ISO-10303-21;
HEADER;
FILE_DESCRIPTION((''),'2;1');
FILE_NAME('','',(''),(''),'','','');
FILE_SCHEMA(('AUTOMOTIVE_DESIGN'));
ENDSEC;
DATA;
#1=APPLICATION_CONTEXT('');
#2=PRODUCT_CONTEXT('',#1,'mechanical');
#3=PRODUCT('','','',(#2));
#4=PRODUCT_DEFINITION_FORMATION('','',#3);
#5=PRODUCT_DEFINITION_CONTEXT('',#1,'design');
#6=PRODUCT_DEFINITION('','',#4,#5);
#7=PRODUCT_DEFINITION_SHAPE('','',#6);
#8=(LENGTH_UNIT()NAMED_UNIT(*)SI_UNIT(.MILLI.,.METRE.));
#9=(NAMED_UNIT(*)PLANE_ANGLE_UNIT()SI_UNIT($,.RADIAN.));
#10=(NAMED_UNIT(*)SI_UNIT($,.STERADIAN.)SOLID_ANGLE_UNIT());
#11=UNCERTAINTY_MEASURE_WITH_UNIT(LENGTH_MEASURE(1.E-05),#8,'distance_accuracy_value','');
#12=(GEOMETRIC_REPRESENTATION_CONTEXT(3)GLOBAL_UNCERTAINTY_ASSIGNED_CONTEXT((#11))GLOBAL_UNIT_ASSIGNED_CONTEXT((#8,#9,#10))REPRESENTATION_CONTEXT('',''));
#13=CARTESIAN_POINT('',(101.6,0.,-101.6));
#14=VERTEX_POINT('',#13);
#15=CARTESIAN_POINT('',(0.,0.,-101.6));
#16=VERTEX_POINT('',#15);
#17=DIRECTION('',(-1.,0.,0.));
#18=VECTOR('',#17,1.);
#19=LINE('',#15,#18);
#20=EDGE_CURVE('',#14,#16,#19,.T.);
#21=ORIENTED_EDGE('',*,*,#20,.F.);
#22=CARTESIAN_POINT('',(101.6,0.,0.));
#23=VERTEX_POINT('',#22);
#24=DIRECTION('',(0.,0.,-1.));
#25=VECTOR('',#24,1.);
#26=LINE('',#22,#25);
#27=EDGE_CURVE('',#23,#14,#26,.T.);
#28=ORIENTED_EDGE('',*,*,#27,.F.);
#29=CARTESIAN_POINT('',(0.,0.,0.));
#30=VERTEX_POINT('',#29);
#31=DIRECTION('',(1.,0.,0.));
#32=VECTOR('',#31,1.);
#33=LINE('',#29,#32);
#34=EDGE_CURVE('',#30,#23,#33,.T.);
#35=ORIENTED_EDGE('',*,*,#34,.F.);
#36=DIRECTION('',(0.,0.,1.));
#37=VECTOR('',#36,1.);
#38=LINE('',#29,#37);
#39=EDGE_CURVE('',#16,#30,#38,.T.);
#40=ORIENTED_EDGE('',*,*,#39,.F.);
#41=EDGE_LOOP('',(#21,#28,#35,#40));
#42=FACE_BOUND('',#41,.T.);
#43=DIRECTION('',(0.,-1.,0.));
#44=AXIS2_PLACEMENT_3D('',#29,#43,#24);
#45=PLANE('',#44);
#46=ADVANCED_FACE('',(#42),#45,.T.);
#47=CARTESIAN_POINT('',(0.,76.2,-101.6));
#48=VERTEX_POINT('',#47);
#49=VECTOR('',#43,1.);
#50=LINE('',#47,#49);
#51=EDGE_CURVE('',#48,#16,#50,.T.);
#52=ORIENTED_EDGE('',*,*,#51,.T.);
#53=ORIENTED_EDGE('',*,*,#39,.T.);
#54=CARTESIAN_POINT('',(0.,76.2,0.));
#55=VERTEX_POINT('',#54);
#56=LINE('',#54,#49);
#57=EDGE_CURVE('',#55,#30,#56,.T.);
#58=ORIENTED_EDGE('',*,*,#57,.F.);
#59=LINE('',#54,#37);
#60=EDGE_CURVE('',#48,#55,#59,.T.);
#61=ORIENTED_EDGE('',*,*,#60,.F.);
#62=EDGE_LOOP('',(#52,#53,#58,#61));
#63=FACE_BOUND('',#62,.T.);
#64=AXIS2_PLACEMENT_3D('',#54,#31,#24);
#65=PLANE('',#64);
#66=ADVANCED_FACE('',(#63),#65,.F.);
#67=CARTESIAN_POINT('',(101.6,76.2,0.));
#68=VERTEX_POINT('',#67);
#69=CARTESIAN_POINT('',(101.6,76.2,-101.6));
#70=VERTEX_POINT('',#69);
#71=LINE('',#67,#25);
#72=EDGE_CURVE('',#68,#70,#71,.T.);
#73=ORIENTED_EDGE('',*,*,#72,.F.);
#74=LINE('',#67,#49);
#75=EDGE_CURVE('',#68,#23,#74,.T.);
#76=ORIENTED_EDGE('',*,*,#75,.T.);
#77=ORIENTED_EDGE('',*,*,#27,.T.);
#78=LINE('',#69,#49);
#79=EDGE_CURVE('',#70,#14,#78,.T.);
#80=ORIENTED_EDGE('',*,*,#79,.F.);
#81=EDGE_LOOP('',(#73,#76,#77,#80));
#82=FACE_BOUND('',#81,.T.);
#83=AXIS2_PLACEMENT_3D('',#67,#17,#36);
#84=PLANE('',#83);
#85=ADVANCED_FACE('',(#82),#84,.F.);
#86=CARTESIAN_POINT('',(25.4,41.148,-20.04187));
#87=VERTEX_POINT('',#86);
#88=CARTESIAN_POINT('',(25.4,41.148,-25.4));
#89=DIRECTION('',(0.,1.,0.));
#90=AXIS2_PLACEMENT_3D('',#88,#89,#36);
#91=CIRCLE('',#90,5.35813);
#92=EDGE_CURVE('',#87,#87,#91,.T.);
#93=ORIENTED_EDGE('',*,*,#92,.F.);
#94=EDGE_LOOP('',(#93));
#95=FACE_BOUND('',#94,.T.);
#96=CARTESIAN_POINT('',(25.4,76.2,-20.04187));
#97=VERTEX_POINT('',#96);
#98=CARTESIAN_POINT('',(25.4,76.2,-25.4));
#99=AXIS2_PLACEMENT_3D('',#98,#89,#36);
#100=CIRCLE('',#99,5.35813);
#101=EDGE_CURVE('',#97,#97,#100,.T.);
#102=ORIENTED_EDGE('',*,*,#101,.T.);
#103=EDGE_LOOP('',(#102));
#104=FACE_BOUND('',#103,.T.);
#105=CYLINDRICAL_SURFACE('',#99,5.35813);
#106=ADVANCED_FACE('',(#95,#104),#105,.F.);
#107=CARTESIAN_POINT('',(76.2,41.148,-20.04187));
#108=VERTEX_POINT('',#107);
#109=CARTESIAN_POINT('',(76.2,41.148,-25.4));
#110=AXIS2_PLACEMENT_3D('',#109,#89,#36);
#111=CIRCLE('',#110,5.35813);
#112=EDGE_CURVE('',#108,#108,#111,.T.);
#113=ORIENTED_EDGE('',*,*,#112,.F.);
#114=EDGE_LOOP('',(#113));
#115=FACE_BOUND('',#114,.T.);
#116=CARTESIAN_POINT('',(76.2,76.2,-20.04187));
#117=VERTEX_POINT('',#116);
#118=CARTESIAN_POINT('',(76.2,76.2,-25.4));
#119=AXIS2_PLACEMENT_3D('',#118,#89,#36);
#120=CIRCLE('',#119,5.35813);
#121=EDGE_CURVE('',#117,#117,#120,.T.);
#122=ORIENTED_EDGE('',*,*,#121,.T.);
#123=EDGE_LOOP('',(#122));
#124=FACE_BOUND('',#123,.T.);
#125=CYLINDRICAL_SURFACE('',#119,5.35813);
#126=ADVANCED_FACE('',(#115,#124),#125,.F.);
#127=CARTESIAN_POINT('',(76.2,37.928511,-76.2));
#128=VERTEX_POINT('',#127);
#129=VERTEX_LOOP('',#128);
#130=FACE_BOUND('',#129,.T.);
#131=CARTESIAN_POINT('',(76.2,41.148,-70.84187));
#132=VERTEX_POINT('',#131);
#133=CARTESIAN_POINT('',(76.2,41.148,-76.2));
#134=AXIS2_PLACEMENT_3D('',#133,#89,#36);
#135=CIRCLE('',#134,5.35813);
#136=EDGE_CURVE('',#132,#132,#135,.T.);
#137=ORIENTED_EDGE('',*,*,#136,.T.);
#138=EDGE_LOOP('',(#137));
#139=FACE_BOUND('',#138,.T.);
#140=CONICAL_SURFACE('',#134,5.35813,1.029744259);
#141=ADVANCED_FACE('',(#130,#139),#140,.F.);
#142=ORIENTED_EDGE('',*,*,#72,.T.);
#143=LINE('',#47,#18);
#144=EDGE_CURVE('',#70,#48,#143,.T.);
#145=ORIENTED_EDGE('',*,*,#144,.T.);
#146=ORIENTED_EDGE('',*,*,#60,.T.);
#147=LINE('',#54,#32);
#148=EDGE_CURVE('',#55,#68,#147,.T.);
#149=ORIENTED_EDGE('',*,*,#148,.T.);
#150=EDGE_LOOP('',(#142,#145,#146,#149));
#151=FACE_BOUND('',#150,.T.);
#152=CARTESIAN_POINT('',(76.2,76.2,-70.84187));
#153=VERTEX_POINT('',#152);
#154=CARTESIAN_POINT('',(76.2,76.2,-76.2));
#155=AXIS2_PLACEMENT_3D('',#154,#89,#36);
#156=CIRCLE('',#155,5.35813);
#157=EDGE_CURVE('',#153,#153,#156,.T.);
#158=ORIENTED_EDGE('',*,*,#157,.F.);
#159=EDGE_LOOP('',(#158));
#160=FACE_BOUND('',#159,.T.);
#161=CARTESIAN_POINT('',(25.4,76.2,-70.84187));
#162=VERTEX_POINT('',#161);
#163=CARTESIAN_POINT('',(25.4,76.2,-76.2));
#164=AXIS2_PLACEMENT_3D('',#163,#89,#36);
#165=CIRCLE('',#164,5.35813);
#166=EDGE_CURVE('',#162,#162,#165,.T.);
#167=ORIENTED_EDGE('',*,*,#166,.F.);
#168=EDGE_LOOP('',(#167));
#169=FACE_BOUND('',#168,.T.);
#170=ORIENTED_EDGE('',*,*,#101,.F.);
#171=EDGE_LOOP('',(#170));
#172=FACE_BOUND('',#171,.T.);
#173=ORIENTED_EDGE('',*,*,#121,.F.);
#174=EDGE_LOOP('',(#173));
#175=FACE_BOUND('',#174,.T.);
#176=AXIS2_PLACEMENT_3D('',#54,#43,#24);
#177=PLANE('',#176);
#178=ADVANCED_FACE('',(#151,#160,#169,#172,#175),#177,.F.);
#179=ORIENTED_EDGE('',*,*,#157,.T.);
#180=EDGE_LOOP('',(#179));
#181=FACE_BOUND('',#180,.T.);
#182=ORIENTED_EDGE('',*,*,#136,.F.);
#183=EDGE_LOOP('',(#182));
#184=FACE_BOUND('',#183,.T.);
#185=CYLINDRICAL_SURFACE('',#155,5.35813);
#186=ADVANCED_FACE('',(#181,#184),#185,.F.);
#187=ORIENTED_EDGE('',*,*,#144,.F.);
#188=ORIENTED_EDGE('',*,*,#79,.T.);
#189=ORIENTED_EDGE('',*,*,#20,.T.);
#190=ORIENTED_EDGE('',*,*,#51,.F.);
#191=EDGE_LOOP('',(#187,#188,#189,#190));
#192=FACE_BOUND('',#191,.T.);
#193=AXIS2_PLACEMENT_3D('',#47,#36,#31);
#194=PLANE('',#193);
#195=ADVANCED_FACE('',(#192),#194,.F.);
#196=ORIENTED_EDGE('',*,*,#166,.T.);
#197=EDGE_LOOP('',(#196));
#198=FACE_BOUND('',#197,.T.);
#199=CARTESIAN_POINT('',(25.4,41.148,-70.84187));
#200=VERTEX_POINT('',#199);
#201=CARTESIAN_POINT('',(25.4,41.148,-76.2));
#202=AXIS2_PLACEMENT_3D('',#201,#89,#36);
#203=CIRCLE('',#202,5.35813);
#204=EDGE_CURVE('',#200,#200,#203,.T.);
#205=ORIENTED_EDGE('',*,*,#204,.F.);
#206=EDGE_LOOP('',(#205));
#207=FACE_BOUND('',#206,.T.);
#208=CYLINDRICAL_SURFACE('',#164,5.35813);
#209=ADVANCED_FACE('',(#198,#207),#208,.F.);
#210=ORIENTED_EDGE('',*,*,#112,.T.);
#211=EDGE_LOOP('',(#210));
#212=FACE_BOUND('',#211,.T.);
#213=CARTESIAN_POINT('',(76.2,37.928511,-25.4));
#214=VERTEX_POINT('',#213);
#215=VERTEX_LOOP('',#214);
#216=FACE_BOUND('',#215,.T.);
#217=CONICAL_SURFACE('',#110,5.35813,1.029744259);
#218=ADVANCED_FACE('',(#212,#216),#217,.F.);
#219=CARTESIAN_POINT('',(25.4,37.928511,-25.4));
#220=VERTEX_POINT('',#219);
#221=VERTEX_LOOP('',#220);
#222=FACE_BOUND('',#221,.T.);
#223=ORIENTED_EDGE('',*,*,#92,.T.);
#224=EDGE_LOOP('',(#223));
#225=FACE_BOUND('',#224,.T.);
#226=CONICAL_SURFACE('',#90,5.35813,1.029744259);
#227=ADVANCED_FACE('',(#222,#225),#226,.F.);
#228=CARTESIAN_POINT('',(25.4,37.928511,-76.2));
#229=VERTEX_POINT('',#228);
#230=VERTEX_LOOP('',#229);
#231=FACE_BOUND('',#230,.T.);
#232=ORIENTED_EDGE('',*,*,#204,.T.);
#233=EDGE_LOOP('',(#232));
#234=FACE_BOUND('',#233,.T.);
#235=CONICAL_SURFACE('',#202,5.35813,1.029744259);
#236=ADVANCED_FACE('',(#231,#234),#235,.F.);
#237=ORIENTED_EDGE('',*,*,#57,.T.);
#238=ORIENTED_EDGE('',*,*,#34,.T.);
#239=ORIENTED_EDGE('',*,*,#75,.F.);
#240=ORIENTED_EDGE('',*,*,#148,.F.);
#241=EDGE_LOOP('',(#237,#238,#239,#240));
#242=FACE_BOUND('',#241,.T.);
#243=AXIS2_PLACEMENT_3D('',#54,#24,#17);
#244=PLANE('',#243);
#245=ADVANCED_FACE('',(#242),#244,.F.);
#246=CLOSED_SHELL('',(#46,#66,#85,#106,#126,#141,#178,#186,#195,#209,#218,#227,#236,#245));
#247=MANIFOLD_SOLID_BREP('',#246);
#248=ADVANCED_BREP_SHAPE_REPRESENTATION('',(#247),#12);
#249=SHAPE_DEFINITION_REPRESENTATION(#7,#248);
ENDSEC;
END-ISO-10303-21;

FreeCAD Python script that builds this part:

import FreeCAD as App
import Part
import Sketcher
from FreeCAD import Vector
Q = App.Units.Quantity

doc = App.newDocument("Part")
body = doc.addObject("PartDesign::Body", "Body")

sketch1 = body.newObject("Sketcher::SketchObject", "Sketch")
sketch1.AttachmentSupport = (doc.getObject("XZ_Plane"), [""])
sketch1.MapMode = "FlatFace"
sketch1.addGeometry(Part.LineSegment(Vector(0, -101.6, 0), Vector(0, 0, 0)), False)
sketch1.addGeometry(Part.LineSegment(Vector(0, 0, 0), Vector(101.6, 0, 0)), False)
sketch1.addGeometry(Part.LineSegment(Vector(101.6, 0, 0), Vector(101.6, -101.6, 0)), False)
sketch1.addGeometry(Part.LineSegment(Vector(101.6, -101.6, 0), Vector(0, -101.6, 0)), False)
sketch1.addConstraint(Sketcher.Constraint("Coincident", 0, 2, 1, 1))
sketch1.addConstraint(Sketcher.Constraint("Coincident", 1, 2, 2, 1))
sketch1.addConstraint(Sketcher.Constraint("Coincident", 2, 2, 3, 1))
sketch1.addConstraint(Sketcher.Constraint("Coincident", 3, 2, 0, 1))
sketch1.addConstraint(Sketcher.Constraint("Vertical", 0))
sketch1.addConstraint(Sketcher.Constraint("Horizontal", 1))
sketch1.addConstraint(Sketcher.Constraint("Vertical", 2))
sketch1.addConstraint(Sketcher.Constraint("Horizontal", 3))
sketch1.addConstraint(Sketcher.Constraint("Coincident", 0, 2, -1, 1))
sketch1.addConstraint(Sketcher.Constraint("Equal", 3, 0))
sketch1.addConstraint(Sketcher.Constraint("DistanceX", 1, 1, 1, 2, Q("4 in")))
pad1 = body.newObject("PartDesign::Pad", "Pad")
pad1.Profile = sketch1
pad1.Length = Q("3 in")
pad1.Reversed = True

sketch2 = body.newObject("Sketcher::SketchObject", "Sketch001")
sketch2.AttachmentSupport = (doc.getObject("XZ_Plane"), [""])
sketch2.MapMode = "FlatFace"
sketch2.AttachmentOffset = App.Placement(Vector(0, 0, -3 * 25.4), App.Rotation())
sketch2.addGeometry(Part.Circle(Vector(25.4, -25.4, 0), Vector(0, 0, 1), 5.35813), False)
sketch2.addGeometry(Part.Circle(Vector(25.4, -76.2, 0), Vector(0, 0, 1), 5.35813), False)
sketch2.addGeometry(Part.Circle(Vector(76.2, -76.2, 0), Vector(0, 0, 1), 5.35813), False)
sketch2.addGeometry(Part.Circle(Vector(76.2, -25.4, 0), Vector(0, 0, 1), 5.35813), False)
sketch2.addConstraint(Sketcher.Constraint("Equal", 0, 1))
sketch2.addConstraint(Sketcher.Constraint("Equal", 1, 2))
sketch2.addConstraint(Sketcher.Constraint("Equal", 2, 3))
sketch2.addConstraint(Sketcher.Constraint("Horizontal", 1, 3, 2, 3))
sketch2.addConstraint(Sketcher.Constraint("Horizontal", 0, 3, 3, 3))
sketch2.addConstraint(Sketcher.Constraint("Vertical", 0, 3, 1, 3))
sketch2.addConstraint(Sketcher.Constraint("Vertical", 2, 3, 3, 3))
sketch2.addConstraint(Sketcher.Constraint("DistanceX", -1, 1, 0, 3, Q("1 in")))
sketch2.addConstraint(Sketcher.Constraint("DistanceY", 0, 3, -1, 1, Q("1 in")))
sketch2.addConstraint(Sketcher.Constraint("DistanceY", 1, 3, -1, 1, Q("3 in")))
sketch2.addConstraint(Sketcher.Constraint("DistanceX", -1, 1, 2, 3, Q("3 in")))
sketch2.addConstraint(Sketcher.Constraint("Diameter", 0, Q("0.4219 in")))
doc.recompute()
hole = body.newObject("PartDesign::Hole", "Hole")
hole.Profile = sketch2
hole.ThreadType = "None"
hole.Diameter = Q("0.4219 in")
hole.DepthType = "Dimension"
hole.Depth = Q("1.38 in")
hole.DrillPoint = "Angled"
hole.DrillPointAngle = 118
hole.Reversed = True

doc.recompute()
